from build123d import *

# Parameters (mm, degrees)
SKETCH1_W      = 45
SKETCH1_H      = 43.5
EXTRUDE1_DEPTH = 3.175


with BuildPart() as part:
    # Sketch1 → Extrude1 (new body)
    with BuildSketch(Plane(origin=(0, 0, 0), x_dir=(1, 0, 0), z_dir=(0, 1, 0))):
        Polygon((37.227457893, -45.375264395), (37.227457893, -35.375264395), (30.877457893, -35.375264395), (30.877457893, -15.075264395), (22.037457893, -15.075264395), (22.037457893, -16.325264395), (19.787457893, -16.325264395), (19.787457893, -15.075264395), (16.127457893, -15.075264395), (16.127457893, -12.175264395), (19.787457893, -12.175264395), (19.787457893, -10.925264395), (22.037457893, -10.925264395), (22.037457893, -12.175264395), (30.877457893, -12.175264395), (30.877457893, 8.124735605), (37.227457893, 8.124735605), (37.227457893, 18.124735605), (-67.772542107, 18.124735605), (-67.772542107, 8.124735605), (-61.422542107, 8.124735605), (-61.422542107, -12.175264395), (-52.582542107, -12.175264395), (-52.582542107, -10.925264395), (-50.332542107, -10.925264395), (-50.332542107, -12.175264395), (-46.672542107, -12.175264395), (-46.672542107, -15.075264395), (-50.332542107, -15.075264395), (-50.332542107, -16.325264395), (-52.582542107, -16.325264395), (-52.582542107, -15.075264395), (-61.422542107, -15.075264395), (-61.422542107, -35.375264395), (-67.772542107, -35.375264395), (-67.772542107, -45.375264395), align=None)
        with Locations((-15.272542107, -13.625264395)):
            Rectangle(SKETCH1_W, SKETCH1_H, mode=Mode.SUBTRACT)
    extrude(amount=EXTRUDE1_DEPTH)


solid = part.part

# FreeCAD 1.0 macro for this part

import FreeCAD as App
import Part
import Sketcher
from FreeCAD import Vector

doc = App.newDocument("Part")
params = doc.addObject("Spreadsheet::Sheet", "Params")
for row, (alias, value) in enumerate([
    ("sketch1_width", "105 mm"),
    ("sketch1_width2", "45 mm"),
    ("sketch1_height", "10 mm"),
    ("sketch1_height2", "20.3 mm"),
    ("sketch1_height3", "2.9 mm"),
    ("pad1_length", "3.175 mm"),
], start=1):
    params.set(f"A{row}", alias)
    params.set(f"B{row}", "=" + value)
    params.setAlias(f"B{row}", alias)

body = doc.addObject("PartDesign::Body", "Body")

sketch1 = body.newObject("Sketcher::SketchObject", "Sketch")
sketch1.AttachmentSupport = (doc.getObject("XZ_Plane"), [""])
sketch1.MapMode = "FlatFace"
sketch1.addGeometry([
    Part.LineSegment(Vector(37.2, 45.4, 0), Vector(37.2, 35.4, 0)),
    Part.LineSegment(Vector(37.2, 35.4, 0), Vector(30.9, 35.4, 0)),
    Part.LineSegment(Vector(30.9, 35.4, 0), Vector(30.9, 15.1, 0)),
    Part.LineSegment(Vector(30.9, 15.1, 0), Vector(22, 15.1, 0)),
    Part.LineSegment(Vector(22, 15.1, 0), Vector(22, 16.3, 0)),
    Part.LineSegment(Vector(22, 16.3, 0), Vector(19.8, 16.3, 0)),
    Part.LineSegment(Vector(19.8, 16.3, 0), Vector(19.8, 15.1, 0)),
    Part.LineSegment(Vector(19.8, 15.1, 0), Vector(16.1, 15.1, 0)),
    Part.LineSegment(Vector(16.1, 15.1, 0), Vector(16.1, 12.2, 0)),
    Part.LineSegment(Vector(16.1, 12.2, 0), Vector(19.8, 12.2, 0)),
    Part.LineSegment(Vector(19.8, 12.2, 0), Vector(19.8, 10.9, 0)),
    Part.LineSegment(Vector(19.8, 10.9, 0), Vector(22, 10.9, 0)),
    Part.LineSegment(Vector(22, 10.9, 0), Vector(22, 12.2, 0)),
    Part.LineSegment(Vector(22, 12.2, 0), Vector(30.9, 12.2, 0)),
    Part.LineSegment(Vector(30.9, 12.2, 0), Vector(30.9, -8.1, 0)),
    Part.LineSegment(Vector(30.9, -8.1, 0), Vector(37.2, -8.1, 0)),
    Part.LineSegment(Vector(37.2, -8.1, 0), Vector(37.2, -18.1, 0)),
    Part.LineSegment(Vector(37.2, -18.1, 0), Vector(-67.8, -18.1, 0)),
    Part.LineSegment(Vector(-67.8, -18.1, 0), Vector(-67.8, -8.1, 0)),
    Part.LineSegment(Vector(-67.8, -8.1, 0), Vector(-61.4, -8.1, 0)),
    Part.LineSegment(Vector(-61.4, -8.1, 0), Vector(-61.4, 12.2, 0)),
    Part.LineSegment(Vector(-61.4, 12.2, 0), Vector(-52.6, 12.2, 0)),
    Part.LineSegment(Vector(-52.6, 12.2, 0), Vector(-52.6, 10.9, 0)),
    Part.LineSegment(Vector(-52.6, 10.9, 0), Vector(-50.3, 10.9, 0)),
    Part.LineSegment(Vector(-50.3, 10.9, 0), Vector(-50.3, 12.2, 0)),
    Part.LineSegment(Vector(-50.3, 12.2, 0), Vector(-46.7, 12.2, 0)),
    Part.LineSegment(Vector(-46.7, 12.2, 0), Vector(-46.7, 15.1, 0)),
    Part.LineSegment(Vector(-46.7, 15.1, 0), Vector(-50.3, 15.1, 0)),
    Part.LineSegment(Vector(-50.3, 15.1, 0), Vector(-50.3, 16.3, 0)),
    Part.LineSegment(Vector(-50.3, 16.3, 0), Vector(-52.6, 16.3, 0)),
    Part.LineSegment(Vector(-52.6, 16.3, 0), Vector(-52.6, 15.1, 0)),
    Part.LineSegment(Vector(-52.6, 15.1, 0), Vector(-61.4, 15.1, 0)),
    Part.LineSegment(Vector(-61.4, 15.1, 0), Vector(-61.4, 35.4, 0)),
    Part.LineSegment(Vector(-61.4, 35.4, 0), Vector(-67.8, 35.4, 0)),
    Part.LineSegment(Vector(-67.8, 35.4, 0), Vector(-67.8, 45.4, 0)),
    Part.LineSegment(Vector(-67.8, 45.4, 0), Vector(37.2, 45.4, 0)),
    Part.LineSegment(Vector(7.2, 35.4, 0), Vector(-37.8, 35.4, 0)),
    Part.LineSegment(Vector(-37.8, 35.4, 0), Vector(-37.8, -8.1, 0)),
    Part.LineSegment(Vector(-37.8, -8.1, 0), Vector(7.2, -8.1, 0)),
    Part.LineSegment(Vector(7.2, -8.1, 0), Vector(7.2, 35.4, 0)),
], False)
sketch1.addConstraint([
    Sketcher.Constraint("Coincident", 0, 2, 1, 1),
    Sketcher.Constraint("Coincident", 1, 2, 2, 1),
    Sketcher.Constraint("Coincident", 2, 2, 3, 1),
    Sketcher.Constraint("Coincident", 3, 2, 4, 1),
    Sketcher.Constraint("Coincident", 4, 2, 5, 1),
    Sketcher.Constraint("Coincident", 5, 2, 6, 1),
    Sketcher.Constraint("Coincident", 6, 2, 7, 1),
    Sketcher.Constraint("Coincident", 7, 2, 8, 1),
    Sketcher.Constraint("Coincident", 8, 2, 9, 1),
    Sketcher.Constraint("Coincident", 9, 2, 10, 1),
    Sketcher.Constraint("Coincident", 10, 2, 11, 1),
    Sketcher.Constraint("Coincident", 11, 2, 12, 1),
    Sketcher.Constraint("Coincident", 12, 2, 13, 1),
    Sketcher.Constraint("Coincident", 13, 2, 14, 1),
    Sketcher.Constraint("Coincident", 14, 2, 15, 1),
    Sketcher.Constraint("Coincident", 15, 2, 16, 1),
    Sketcher.Constraint("Coincident", 16, 2, 17, 1),
    Sketcher.Constraint("Coincident", 17, 2, 18, 1),
    Sketcher.Constraint("Coincident", 18, 2, 19, 1),
    Sketcher.Constraint("Coincident", 19, 2, 20, 1),
    Sketcher.Constraint("Coincident", 20, 2, 21, 1),
    Sketcher.Constraint("Coincident", 21, 2, 22, 1),
    Sketcher.Constraint("Coincident", 22, 2, 23, 1),
    Sketcher.Constraint("Coincident", 23, 2, 24, 1),
    Sketcher.Constraint("Coincident", 24, 2, 25, 1),
    Sketcher.Constraint("Coincident", 25, 2, 26, 1),
    Sketcher.Constraint("Coincident", 26, 2, 27, 1),
    Sketcher.Constraint("Coincident", 27, 2, 28, 1),
    Sketcher.Constraint("Coincident", 28, 2, 29, 1),
    Sketcher.Constraint("Coincident", 29, 2, 30, 1),
    Sketcher.Constraint("Coincident", 30, 2, 31, 1),
    Sketcher.Constraint("Coincident", 31, 2, 32, 1),
    Sketcher.Constraint("Coincident", 32, 2, 33, 1),
    Sketcher.Constraint("Coincident", 33, 2, 34, 1),
    Sketcher.Constraint("Coincident", 34, 2, 35, 1),
    Sketcher.Constraint("Coincident", 35, 2, 0, 1),
    Sketcher.Constraint("Coincident", 36, 2, 37, 1),
    Sketcher.Constraint("Coincident", 37, 2, 38, 1),
    Sketcher.Constraint("Coincident", 38, 2, 39, 1),
    Sketcher.Constraint("Coincident", 39, 2, 36, 1),
    Sketcher.Constraint("Vertical", 0),
    Sketcher.Constraint("Horizontal", 1),
    Sketcher.Constraint("Vertical", 2),
    Sketcher.Constraint("Horizontal", 3),
    Sketcher.Constraint("Vertical", 4),
    Sketcher.Constraint("Horizontal", 5),
    Sketcher.Constraint("Vertical", 6),
    Sketcher.Constraint("Horizontal", 7),
    Sketcher.Constraint("Vertical", 8),
    Sketcher.Constraint("Horizontal", 9),
    Sketcher.Constraint("Vertical", 10),
    Sketcher.Constraint("Horizontal", 11),
    Sketcher.Constraint("Vertical", 12),
    Sketcher.Constraint("Horizontal", 13),
    Sketcher.Constraint("Vertical", 14),
    Sketcher.Constraint("Horizontal", 15),
    Sketcher.Constraint("Vertical", 16),
    Sketcher.Constraint("Horizontal", 17),
    Sketcher.Constraint("Vertical", 18),
    Sketcher.Constraint("Horizontal", 19),
    Sketcher.Constraint("Vertical", 20),
    Sketcher.Constraint("Horizontal", 21),
    Sketcher.Constraint("Vertical", 22),
    Sketcher.Constraint("Horizontal", 23),
    Sketcher.Constraint("Vertical", 24),
    Sketcher.Constraint("Horizontal", 25),
    Sketcher.Constraint("Vertical", 26),
    Sketcher.Constraint("Horizontal", 27),
    Sketcher.Constraint("Vertical", 28),
    Sketcher.Constraint("Horizontal", 29),
    Sketcher.Constraint("Vertical", 30),
    Sketcher.Constraint("Horizontal", 31),
    Sketcher.Constraint("Vertical", 32),
    Sketcher.Constraint("Horizontal", 33),
    Sketcher.Constraint("Vertical", 34),
    Sketcher.Constraint("Horizontal", 35),
    Sketcher.Constraint("Horizontal", 36),
    Sketcher.Constraint("Vertical", 37),
    Sketcher.Constraint("Horizontal", 38),
    Sketcher.Constraint("Vertical", 39),
    Sketcher.Constraint("Horizontal", 3, 2, 6, 2),
    Sketcher.Constraint("Horizontal", 9, 2, 12, 2),
    Sketcher.Constraint("Horizontal", 15, 2, 18, 2),
    Sketcher.Constraint("Horizontal", 13, 2, 20, 2),
    Sketcher.Constraint("Horizontal", 11, 2, 22, 2),
    Sketcher.Constraint("Horizontal", 21, 2, 24, 2),
    Sketcher.Constraint("Horizontal", 7, 2, 26, 2),
    Sketcher.Constraint("Horizontal", 5, 2, 28, 2),
    Sketcher.Constraint("Horizontal", 27, 2, 30, 2),
    Sketcher.Constraint("Horizontal", 1, 2, 32, 2),
    Sketcher.Constraint("Horizontal", 33, 2, 36, 2),
    Sketcher.Constraint("Horizontal", 19, 2, 37, 2),
    Sketcher.Constraint("Vertical", 6, 2, 9, 2),
    Sketcher.Constraint("Vertical", 4, 2, 11, 2),
    Sketcher.Constraint("Vertical", 2, 2, 13, 2),
    Sketcher.Constraint("Vertical", 0, 2, 15, 2),
    Sketcher.Constraint("Vertical", 24, 2, 27, 2),
    Sketcher.Constraint("Vertical", 22, 2, 29, 2),
    Sketcher.Constraint("Vertical", 20, 2, 31, 2),
    Sketcher.Constraint("Vertical", 18, 2, 33, 2),
    Sketcher.Constraint("Equal", 15, 19),
    Sketcher.Constraint("Equal", 13, 21),
    Sketcher.Constraint("Equal", 11, 23),
    Sketcher.Constraint("Equal", 9, 25),
    Sketcher.Constraint("Equal", 6, 10),
    Sketcher.Constraint("Equal", 2, 14),
    Sketcher.Constraint("Equal", 0, 16),
    Sketcher.Constraint("DistanceX", 17, 2, 17, 1, 105.0),
    Sketcher.Constraint("DistanceX", 36, 2, 36, 1, 45.0),
    Sketcher.Constraint("DistanceY", 0, 2, 0, 1, 10.0),
    Sketcher.Constraint("DistanceY", 2, 2, 2, 1, 20.3),
    Sketcher.Constraint("DistanceY", 8, 2, 8, 1, 2.9),
    Sketcher.Constraint("DistanceX", 1, 2, 1, 1, 6.35),
    Sketcher.Constraint("DistanceX", 3, 2, 3, 1, 8.84),
    Sketcher.Constraint("DistanceX", 5, 2, 5, 1, 2.25),
    Sketcher.Constraint("DistanceX", 7, 2, 7, 1, 3.66),
    Sketcher.Constraint("DistanceY", 4, 1, 4, 2, 1.25),
    Sketcher.Constraint("DistanceX", 26, 2, 36, 2, 8.9),
    Sketcher.Constraint("DistanceX", -1, 1, 0, 2, 37.227458),
    Sketcher.Constraint("DistanceY", -1, 1, 0, 2, 35.375264),
])
sketch1.setExpression("Constraints[107]", "Params.sketch1_width")
sketch1.setExpression("Constraints[108]", "Params.sketch1_width2")
sketch1.setExpression("Constraints[109]", "Params.sketch1_height")
sketch1.setExpression("Constraints[110]", "Params.sketch1_height2")
sketch1.setExpression("Constraints[111]", "Params.sketch1_height3")
pad1 = body.newObject("PartDesign::Pad", "Pad")
pad1.Profile = sketch1
pad1.setExpression("Length", "Params.pad1_length")
pad1.Reversed = True

doc.recompute()
